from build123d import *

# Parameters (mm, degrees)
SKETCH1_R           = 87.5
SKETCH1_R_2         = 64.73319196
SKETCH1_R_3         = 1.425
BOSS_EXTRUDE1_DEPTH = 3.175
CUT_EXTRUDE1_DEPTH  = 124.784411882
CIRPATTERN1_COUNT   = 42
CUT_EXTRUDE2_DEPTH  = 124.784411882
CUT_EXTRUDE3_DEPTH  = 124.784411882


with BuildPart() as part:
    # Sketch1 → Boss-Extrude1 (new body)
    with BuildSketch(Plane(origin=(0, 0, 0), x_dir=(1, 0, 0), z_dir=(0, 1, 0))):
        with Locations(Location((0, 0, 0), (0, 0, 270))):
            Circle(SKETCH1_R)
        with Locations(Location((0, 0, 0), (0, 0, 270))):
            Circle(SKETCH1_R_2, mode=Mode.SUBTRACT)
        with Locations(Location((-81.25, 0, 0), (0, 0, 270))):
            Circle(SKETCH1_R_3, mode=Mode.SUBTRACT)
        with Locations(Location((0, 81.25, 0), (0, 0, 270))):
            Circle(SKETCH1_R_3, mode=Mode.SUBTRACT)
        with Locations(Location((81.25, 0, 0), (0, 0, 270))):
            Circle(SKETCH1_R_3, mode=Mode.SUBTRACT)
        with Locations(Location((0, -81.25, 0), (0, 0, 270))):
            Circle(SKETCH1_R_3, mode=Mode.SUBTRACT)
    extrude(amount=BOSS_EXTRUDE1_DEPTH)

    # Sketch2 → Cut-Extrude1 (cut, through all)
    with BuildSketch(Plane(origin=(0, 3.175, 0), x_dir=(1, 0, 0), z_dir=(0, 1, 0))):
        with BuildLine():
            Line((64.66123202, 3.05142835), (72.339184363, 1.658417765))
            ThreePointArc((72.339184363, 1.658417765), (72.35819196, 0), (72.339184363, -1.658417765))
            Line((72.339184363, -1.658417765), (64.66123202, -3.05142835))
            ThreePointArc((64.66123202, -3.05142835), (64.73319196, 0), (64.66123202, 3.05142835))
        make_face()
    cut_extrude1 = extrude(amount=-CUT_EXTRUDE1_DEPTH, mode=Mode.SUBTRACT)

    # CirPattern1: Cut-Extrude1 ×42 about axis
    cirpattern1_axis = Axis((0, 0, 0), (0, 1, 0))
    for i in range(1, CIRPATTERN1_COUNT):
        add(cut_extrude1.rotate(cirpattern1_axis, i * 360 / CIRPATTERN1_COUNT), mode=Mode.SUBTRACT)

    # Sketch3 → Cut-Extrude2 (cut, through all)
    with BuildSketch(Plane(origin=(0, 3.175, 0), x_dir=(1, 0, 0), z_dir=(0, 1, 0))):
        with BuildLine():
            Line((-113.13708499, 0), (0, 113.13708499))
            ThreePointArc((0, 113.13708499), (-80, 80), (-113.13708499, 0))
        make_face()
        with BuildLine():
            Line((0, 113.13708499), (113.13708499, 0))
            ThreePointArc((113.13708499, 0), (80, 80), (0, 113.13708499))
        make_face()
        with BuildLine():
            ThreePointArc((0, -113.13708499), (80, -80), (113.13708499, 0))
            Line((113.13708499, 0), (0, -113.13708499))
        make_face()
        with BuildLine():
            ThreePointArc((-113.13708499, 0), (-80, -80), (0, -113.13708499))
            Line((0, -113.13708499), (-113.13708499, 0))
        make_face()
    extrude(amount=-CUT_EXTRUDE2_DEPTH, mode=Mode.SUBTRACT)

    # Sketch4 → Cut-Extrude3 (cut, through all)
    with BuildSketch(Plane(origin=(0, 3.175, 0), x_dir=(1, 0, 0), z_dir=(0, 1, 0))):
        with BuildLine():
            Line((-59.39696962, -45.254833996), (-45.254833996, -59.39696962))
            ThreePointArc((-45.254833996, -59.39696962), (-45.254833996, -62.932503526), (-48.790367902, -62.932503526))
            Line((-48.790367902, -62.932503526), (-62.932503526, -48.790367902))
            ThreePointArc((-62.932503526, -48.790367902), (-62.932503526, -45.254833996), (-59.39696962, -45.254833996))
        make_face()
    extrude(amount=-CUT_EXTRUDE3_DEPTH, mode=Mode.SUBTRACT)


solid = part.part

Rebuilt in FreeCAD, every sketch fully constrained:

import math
import FreeCAD as App
import Part
import Sketcher
from FreeCAD import Vector
Q = App.Units.Quantity

doc = App.newDocument("Part")
body = doc.addObject("PartDesign::Body", "Body")

# Sketch on XZ plane
sketch1 = doc.addObject("Sketcher::SketchObject", "Sketch")
body.addObject(sketch1)
sketch1.AttachmentSupport = (doc.XZ_Plane, [""])
sketch1.MapMode = "FlatFace"
sketch1.addGeometry([
    Part.Circle(Vector(0, 0, 0), Vector(0, 0, 1), 87.5),  # 0
    Part.Circle(Vector(0, -81.2, 0), Vector(0, 0, 1), 1.4),  # 1
    Part.Circle(Vector(-81.2, 0, 0), Vector(0, 0, 1), 1.4),  # 2
    Part.Circle(Vector(81.2, 0, 0), Vector(0, 0, 1), 1.4),  # 3
    Part.Circle(Vector(0, 0, 0), Vector(0, 0, 1), 64.7),  # 4
    Part.Circle(Vector(0, 81.2, 0), Vector(0, 0, 1), 1.4),  # 5
], False)
sketch1.addConstraint([
    Sketcher.Constraint("Coincident", 0, 3, -1, 1),
    Sketcher.Constraint("Coincident", 4, 3, -1, 1),
    Sketcher.Constraint("Equal", 1, 2),
    Sketcher.Constraint("Equal", 2, 3),
    Sketcher.Constraint("Equal", 3, 5),
    Sketcher.Constraint("Symmetric", 2, 3, 3, 3, -1, 1),
    Sketcher.Constraint("Symmetric", 1, 3, 5, 3, -1, 1),
    Sketcher.Constraint("PointOnObject", 1, 3, -2),
    Sketcher.Constraint("PointOnObject", 2, 3, -1),
    Sketcher.Constraint("Diameter", 0, Q("175 mm")),
    Sketcher.Constraint("Diameter", 1, Q("2.85 mm")),
    Sketcher.Constraint("DistanceX", 2, 3, 3, 3, Q("162.5 mm")),
    Sketcher.Constraint("DistanceY", 1, 3, 5, 3, Q("162.5 mm")),
    Sketcher.Constraint("Diameter", 4, Q("129.466384 mm")),
])
pad1 = doc.addObject("PartDesign::Pad", "Pad")
body.addObject(pad1)
pad1.Profile = sketch1
pad1.Length = 3.175
pad1.Reversed = True

# Sketch on XZ plane
sketch2 = doc.addObject("Sketcher::SketchObject", "Sketch001")
body.addObject(sketch2)
sketch2.AttachmentSupport = (doc.XZ_Plane, [""])
sketch2.MapMode = "FlatFace"
sketch2.AttachmentOffset = App.Placement(Vector(0, 0, -3.175), App.Rotation())
sketch2.addGeometry([
    Part.LineSegment(Vector(72.3, -1.7, 0), Vector(64.7, -3.1, 0)),
    Part.ArcOfCircle(Part.Circle(Vector(0, 0, 0), Vector(0, 0, 1), 64.7), math.radians(-2.7), math.radians(2.7)),
    Part.LineSegment(Vector(64.7, 3.1, 0), Vector(72.3, 1.7, 0)),
    Part.ArcOfCircle(Part.Circle(Vector(0, 0, 0), Vector(0, 0, 1), 72.4), math.radians(-1.31), math.radians(1.31)),
], False)
sketch2.addConstraint([
    Sketcher.Constraint("Coincident", 0, 2, 1, 1),
    Sketcher.Constraint("Coincident", 1, 2, 2, 1),
    Sketcher.Constraint("Coincident", 2, 2, 3, 2),
    Sketcher.Constraint("Coincident", 3, 1, 0, 1),
    Sketcher.Constraint("Coincident", 1, 3, -1, 1),
    Sketcher.Constraint("Coincident", 3, 3, -1, 1),
    Sketcher.Constraint("Vertical", 0, 2, 1, 2),
    Sketcher.Constraint("Vertical", 2, 2, 3, 1),
    Sketcher.Constraint("Radius", 1, Q("64.733192 mm")),
    Sketcher.Constraint("Radius", 3, Q("72.358194 mm")),
    Sketcher.Constraint("DistanceY", 0, 2, -1, 1, Q("3.051428 mm")),
    Sketcher.Constraint("DistanceY", 2, 2, 1, 2, Q("1.393011 mm")),
])
pocket1 = doc.addObject("PartDesign::Pocket", "Pocket")
body.addObject(pocket1)
pocket1.Profile = sketch2
pocket1.Type = "ThroughAll"
pocket1.Reversed = True
doc.recompute()

polarpattern = doc.addObject("PartDesign::PolarPattern", "PolarPattern")
body.addObject(polarpattern)
polarpattern.Originals = [pocket1]
polarpattern.Axis = (doc.Y_Axis, [""])
polarpattern.Angle = 360
polarpattern.Occurrences = 42
body.Tip = polarpattern

# Sketch on XZ plane
sketch3 = doc.addObject("Sketcher::SketchObject", "Sketch002")
body.addObject(sketch3)
sketch3.AttachmentSupport = (doc.XZ_Plane, [""])
sketch3.MapMode = "FlatFace"
sketch3.AttachmentOffset = App.Placement(Vector(0, 0, -3.175), App.Rotation())
sketch3.addGeometry([
    Part.LineSegment(Vector(-113, 0, 0), Vector(0, -113, 0)),  # 0
    Part.ArcOfCircle(Part.Circle(Vector(0, 0, 0), Vector(0, 0, 1), 113), math.radians(180), math.radians(270)),  # 1
    Part.LineSegment(Vector(0, -113, 0), Vector(113, 0, 0)),  # 2
    Part.ArcOfCircle(Part.Circle(Vector(0, 0, 0), Vector(0, 0, 1), 113), math.radians(-90), math.radians(0)),  # 3
    Part.ArcOfCircle(Part.Circle(Vector(0, 0, 0), Vector(0, 0, 1), 113), math.radians(0), math.radians(90)),  # 4
    Part.LineSegment(Vector(113, 0, 0), Vector(0, 113, 0)),  # 5
    Part.ArcOfCircle(Part.Circle(Vector(0, 0, 0), Vector(0, 0, 1), 113), math.radians(90), math.radians(180)),  # 6
    Part.LineSegment(Vector(0, 113, 0), Vector(-113, 0, 0)),  # 7
], False)
sketch3.addConstraint([
    Sketcher.Constraint("Coincident", 0, 1, 1, 1),
    Sketcher.Constraint("Coincident", 1, 2, 0, 2),
    Sketcher.Constraint("Coincident", 2, 1, 3, 1),
    Sketcher.Constraint("Coincident", 3, 2, 2, 2),
    Sketcher.Constraint("Coincident", 4, 1, 5, 1),
    Sketcher.Constraint("Coincident", 5, 2, 4, 2),
    Sketcher.Constraint("Coincident", 6, 1, 7, 1),
    Sketcher.Constraint("Coincident", 7, 2, 6, 2),
    Sketcher.Constraint("Coincident", 1, 3, -1, 1),
    Sketcher.Constraint("Coincident", 3, 3, -1, 1),
    Sketcher.Constraint("Coincident", 4, 3, -1, 1),
    Sketcher.Constraint("Coincident", 6, 3, -1, 1),
    Sketcher.Constraint("Coincident", 2, 1, 1, 2),
    Sketcher.Constraint("Coincident", 4, 1, 3, 2),
    Sketcher.Constraint("Coincident", 6, 1, 5, 2),
    Sketcher.Constraint("PointOnObject", 0, 1, -1),
    Sketcher.Constraint("PointOnObject", 1, 2, -2),
    Sketcher.Constraint("PointOnObject", 3, 2, -1),
    Sketcher.Constraint("PointOnObject", 5, 2, -2),
    Sketcher.Constraint("PointOnObject", 7, 2, -1),
    Sketcher.Constraint("Distance", 0, Q("160 mm")),
])
pocket2 = doc.addObject("PartDesign::Pocket", "Pocket001")
body.addObject(pocket2)
pocket2.Profile = sketch3
pocket2.Type = "ThroughAll"
pocket2.Reversed = True

# Sketch on XZ plane
sketch4 = doc.addObject("Sketcher::SketchObject", "Sketch003")
body.addObject(sketch4)
sketch4.AttachmentSupport = (doc.XZ_Plane, [""])
sketch4.MapMode = "FlatFace"
sketch4.AttachmentOffset = App.Placement(Vector(0, 0, -3.175), App.Rotation())
sketch4.addGeometry([
    Part.LineSegment(Vector(-45.3, 59.4, 0), Vector(-59.4, 45.3, 0)),
    Part.ArcOfCircle(Part.Circle(Vector(-61.2, 47, 0), Vector(0, 0, 1), 2.5), math.radians(135), math.radians(315)),
    Part.LineSegment(Vector(-62.9, 48.8, 0), Vector(-48.8, 62.9, 0)),
    Part.ArcOfCircle(Part.Circle(Vector(-47, 61.2, 0), Vector(0, 0, 1), 2.5), math.radians(-45), math.radians(135)),
], False)
sketch4.addConstraint([
    Sketcher.Constraint("Tangent", 0, 2, 1, 2),
    Sketcher.Constraint("Tangent", 1, 1, 2, 1),
    Sketcher.Constraint("Tangent", 2, 2, 3, 2),
    Sketcher.Constraint("Tangent", 3, 1, 0, 1),
    Sketcher.Constraint("Equal", 1, 3),
    Sketcher.Constraint("Radius", 1, Q("2.5 mm")),
    Sketcher.Constraint("Angle", 0, Q("-135 deg")),
    Sketcher.Constraint("Distance", 0, Q("20 mm")),
    Sketcher.Constraint("DistanceY", -1, 1, 1, 3, Q("47.022601 mm")),
    Sketcher.Constraint("DistanceX", 3, 3, -1, 1, Q("47.022601 mm")),
])
pocket3 = doc.addObject("PartDesign::Pocket", "Pocket002")
body.addObject(pocket3)
pocket3.Profile = sketch4
pocket3.Type = "ThroughAll"
pocket3.Reversed = True

doc.recompute()
